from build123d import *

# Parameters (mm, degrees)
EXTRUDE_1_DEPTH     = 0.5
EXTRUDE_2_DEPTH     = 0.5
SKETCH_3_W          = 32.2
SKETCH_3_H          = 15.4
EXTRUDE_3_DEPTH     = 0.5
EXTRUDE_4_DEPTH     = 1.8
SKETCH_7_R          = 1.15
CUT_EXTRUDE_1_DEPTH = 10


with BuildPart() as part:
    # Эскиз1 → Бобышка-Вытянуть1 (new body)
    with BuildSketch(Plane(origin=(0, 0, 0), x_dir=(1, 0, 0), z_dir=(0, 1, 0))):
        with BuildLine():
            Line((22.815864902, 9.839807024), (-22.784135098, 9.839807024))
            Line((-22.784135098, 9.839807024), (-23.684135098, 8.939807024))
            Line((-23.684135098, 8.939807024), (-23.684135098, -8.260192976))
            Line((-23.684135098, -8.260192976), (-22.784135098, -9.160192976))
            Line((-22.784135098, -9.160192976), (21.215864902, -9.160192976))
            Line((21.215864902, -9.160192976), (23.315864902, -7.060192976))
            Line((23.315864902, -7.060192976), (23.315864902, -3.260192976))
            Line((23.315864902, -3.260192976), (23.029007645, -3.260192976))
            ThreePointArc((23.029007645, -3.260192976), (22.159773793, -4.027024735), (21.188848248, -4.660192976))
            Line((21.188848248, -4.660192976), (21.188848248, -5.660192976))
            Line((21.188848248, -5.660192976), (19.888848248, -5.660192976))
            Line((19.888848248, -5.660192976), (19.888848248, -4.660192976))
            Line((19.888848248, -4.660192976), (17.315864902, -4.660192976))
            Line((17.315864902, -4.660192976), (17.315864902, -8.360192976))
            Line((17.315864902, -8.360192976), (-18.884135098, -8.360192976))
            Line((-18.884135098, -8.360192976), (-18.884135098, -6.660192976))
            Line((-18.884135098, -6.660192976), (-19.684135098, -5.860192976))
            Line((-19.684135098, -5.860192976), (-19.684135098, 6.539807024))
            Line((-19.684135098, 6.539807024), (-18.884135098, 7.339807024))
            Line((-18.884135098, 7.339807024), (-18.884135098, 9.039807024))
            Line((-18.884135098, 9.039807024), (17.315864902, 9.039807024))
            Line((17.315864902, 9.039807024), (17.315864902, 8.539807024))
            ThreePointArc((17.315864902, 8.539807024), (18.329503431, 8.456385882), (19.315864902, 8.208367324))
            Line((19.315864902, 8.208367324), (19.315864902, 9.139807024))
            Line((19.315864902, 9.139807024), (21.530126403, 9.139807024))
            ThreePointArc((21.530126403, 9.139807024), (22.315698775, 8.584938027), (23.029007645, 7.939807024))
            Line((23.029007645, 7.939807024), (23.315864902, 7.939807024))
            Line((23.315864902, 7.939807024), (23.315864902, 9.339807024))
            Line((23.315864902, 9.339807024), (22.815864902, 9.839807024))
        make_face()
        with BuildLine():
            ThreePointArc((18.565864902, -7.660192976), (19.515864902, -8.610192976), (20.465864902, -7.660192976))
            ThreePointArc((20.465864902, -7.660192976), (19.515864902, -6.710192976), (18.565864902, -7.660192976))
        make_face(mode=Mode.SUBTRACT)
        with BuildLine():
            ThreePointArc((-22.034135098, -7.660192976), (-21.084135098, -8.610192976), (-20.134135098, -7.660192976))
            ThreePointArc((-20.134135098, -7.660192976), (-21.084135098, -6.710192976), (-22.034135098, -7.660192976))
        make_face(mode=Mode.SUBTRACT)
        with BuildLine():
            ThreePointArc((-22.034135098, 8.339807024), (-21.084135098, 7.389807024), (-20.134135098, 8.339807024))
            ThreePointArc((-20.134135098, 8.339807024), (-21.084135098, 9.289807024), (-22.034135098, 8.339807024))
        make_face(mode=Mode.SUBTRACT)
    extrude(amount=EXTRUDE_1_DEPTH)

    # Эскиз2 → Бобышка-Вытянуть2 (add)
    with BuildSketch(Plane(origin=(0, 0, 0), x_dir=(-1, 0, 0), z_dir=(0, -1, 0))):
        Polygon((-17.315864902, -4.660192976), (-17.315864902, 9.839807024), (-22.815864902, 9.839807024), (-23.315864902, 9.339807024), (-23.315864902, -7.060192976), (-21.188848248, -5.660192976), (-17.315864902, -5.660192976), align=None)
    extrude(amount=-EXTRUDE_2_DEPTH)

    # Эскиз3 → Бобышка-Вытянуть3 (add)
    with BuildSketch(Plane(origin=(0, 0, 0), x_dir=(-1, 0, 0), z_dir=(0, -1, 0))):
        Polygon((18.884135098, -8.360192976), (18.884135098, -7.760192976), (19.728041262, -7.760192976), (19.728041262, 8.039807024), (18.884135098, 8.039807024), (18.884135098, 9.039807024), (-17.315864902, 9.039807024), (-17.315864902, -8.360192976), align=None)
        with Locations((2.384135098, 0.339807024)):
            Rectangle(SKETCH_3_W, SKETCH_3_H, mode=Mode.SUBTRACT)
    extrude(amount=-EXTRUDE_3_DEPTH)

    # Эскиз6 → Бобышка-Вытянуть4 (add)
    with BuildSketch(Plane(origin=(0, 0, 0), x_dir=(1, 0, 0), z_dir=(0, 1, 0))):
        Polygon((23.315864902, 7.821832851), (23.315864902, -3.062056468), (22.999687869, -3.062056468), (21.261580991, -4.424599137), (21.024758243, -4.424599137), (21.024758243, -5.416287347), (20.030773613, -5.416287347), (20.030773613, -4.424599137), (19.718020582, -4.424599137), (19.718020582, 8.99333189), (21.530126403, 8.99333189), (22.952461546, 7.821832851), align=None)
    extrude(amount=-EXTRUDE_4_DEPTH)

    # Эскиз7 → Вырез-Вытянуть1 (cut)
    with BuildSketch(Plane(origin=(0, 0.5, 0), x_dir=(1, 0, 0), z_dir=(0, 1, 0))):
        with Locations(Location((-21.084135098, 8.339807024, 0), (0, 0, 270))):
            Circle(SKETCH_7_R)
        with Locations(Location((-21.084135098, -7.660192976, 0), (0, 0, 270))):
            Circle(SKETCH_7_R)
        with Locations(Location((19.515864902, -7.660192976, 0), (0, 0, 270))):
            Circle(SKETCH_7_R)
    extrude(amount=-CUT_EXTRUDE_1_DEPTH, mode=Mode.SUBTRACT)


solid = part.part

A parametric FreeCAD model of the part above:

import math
import FreeCAD as App
import Part
import Sketcher

V = App.Vector
Q = App.Units.Quantity

doc = App.newDocument("Part")
body = doc.addObject("PartDesign::Body", "Body")

# Sketch on XZ plane
sketch1 = body.newObject("Sketcher::SketchObject", "Sketch")
sketch1.AttachmentSupport = (doc.getObject("XZ_Plane"), [""])
sketch1.MapMode = "FlatFace"
sketch1.addGeometry(Part.LineSegment(V(22.82, -9.84, 0), V(-22.78, -9.84, 0)), False)
sketch1.addGeometry(Part.LineSegment(V(-22.78, -9.84, 0), V(-23.68, -8.94, 0)), False)
sketch1.addGeometry(Part.LineSegment(V(-23.68, -8.94, 0), V(-23.68, 8.26, 0)), False)
sketch1.addGeometry(Part.LineSegment(V(-23.68, 8.26, 0), V(-22.78, 9.16, 0)), False)
sketch1.addGeometry(Part.LineSegment(V(-22.78, 9.16, 0), V(21.22, 9.16, 0)), False)
sketch1.addGeometry(Part.LineSegment(V(21.22, 9.16, 0), V(23.32, 7.06, 0)), False)
sketch1.addGeometry(Part.LineSegment(V(23.32, 7.06, 0), V(23.32, 3.26, 0)), False)
sketch1.addGeometry(Part.LineSegment(V(23.32, 3.26, 0), V(23.03, 3.26, 0)), False)
sketch1.addGeometry(Part.ArcOfCircle(Part.Circle(V(17.32, -2.34, 0), V(0, 0, 1), 8), math.radians(44.43), math.radians(61.04)), False)
sketch1.addGeometry(Part.LineSegment(V(21.19, 4.66, 0), V(21.19, 5.66, 0)), False)
sketch1.addGeometry(Part.LineSegment(V(21.19, 5.66, 0), V(19.89, 5.66, 0)), False)
sketch1.addGeometry(Part.LineSegment(V(19.89, 5.66, 0), V(19.89, 4.66, 0)), False)
sketch1.addGeometry(Part.LineSegment(V(19.89, 4.66, 0), V(17.32, 4.66, 0)), False)
sketch1.addGeometry(Part.LineSegment(V(17.32, 4.66, 0), V(17.32, 8.36, 0)), False)
sketch1.addGeometry(Part.LineSegment(V(17.32, 8.36, 0), V(-18.88, 8.36, 0)), False)
sketch1.addGeometry(Part.LineSegment(V(-18.88, 8.36, 0), V(-18.88, 6.66, 0)), False)
sketch1.addGeometry(Part.LineSegment(V(-18.88, 6.66, 0), V(-19.68, 5.86, 0)), False)
sketch1.addGeometry(Part.LineSegment(V(-19.68, 5.86, 0), V(-19.68, -6.54, 0)), False)
sketch1.addGeometry(Part.LineSegment(V(-19.68, -6.54, 0), V(-18.88, -7.34, 0)), False)
sketch1.addGeometry(Part.LineSegment(V(-18.88, -7.34, 0), V(-18.88, -9.04, 0)), False)
sketch1.addGeometry(Part.LineSegment(V(-18.88, -9.04, 0), V(17.32, -9.04, 0)), False)
sketch1.addGeometry(Part.LineSegment(V(17.32, -9.04, 0), V(17.32, -8.54, 0)), False)
sketch1.addGeometry(Part.ArcOfCircle(Part.Circle(V(17.32, -2.34, 0), V(0, 0, 1), 6.2), math.radians(-90), math.radians(-71.18)), False)
sketch1.addGeometry(Part.LineSegment(V(19.32, -8.21, 0), V(19.32, -9.14, 0)), False)
sketch1.addGeometry(Part.LineSegment(V(19.32, -9.14, 0), V(21.53, -9.14, 0)), False)
sketch1.addGeometry(Part.ArcOfCircle(Part.Circle(V(17.32, -2.34, 0), V(0, 0, 1), 8), math.radians(-58.21), math.radians(-44.43)), False)
sketch1.addGeometry(Part.LineSegment(V(23.03, -7.94, 0), V(23.32, -7.94, 0)), False)
sketch1.addGeometry(Part.LineSegment(V(23.32, -7.94, 0), V(23.32, -9.34, 0)), False)
sketch1.addGeometry(Part.LineSegment(V(23.32, -9.34, 0), V(22.82, -9.84, 0)), False)
sketch1.addGeometry(Part.Circle(V(-21.08, 7.66, 0), V(0, 0, 1), 0.95), False)
sketch1.addGeometry(Part.Circle(V(19.52, 7.66, 0), V(0, 0, 1), 0.95), False)
sketch1.addGeometry(Part.Circle(V(-21.08, -8.34, 0), V(0, 0, 1), 0.95), False)
sketch1.addConstraint(Sketcher.Constraint("Coincident", 0, 2, 1, 1))
sketch1.addConstraint(Sketcher.Constraint("Coincident", 1, 2, 2, 1))
sketch1.addConstraint(Sketcher.Constraint("Coincident", 2, 2, 3, 1))
sketch1.addConstraint(Sketcher.Constraint("Coincident", 3, 2, 4, 1))
sketch1.addConstraint(Sketcher.Constraint("Coincident", 4, 2, 5, 1))
sketch1.addConstraint(Sketcher.Constraint("Coincident", 5, 2, 6, 1))
sketch1.addConstraint(Sketcher.Constraint("Coincident", 6, 2, 7, 1))
sketch1.addConstraint(Sketcher.Constraint("Coincident", 7, 2, 8, 1))
sketch1.addConstraint(Sketcher.Constraint("Coincident", 8, 2, 9, 1))
sketch1.addConstraint(Sketcher.Constraint("Coincident", 9, 2, 10, 1))
sketch1.addConstraint(Sketcher.Constraint("Coincident", 10, 2, 11, 1))
sketch1.addConstraint(Sketcher.Constraint("Coincident", 11, 2, 12, 1))
sketch1.addConstraint(Sketcher.Constraint("Coincident", 12, 2, 13, 1))
sketch1.addConstraint(Sketcher.Constraint("Coincident", 13, 2, 14, 1))
sketch1.addConstraint(Sketcher.Constraint("Coincident", 14, 2, 15, 1))
sketch1.addConstraint(Sketcher.Constraint("Coincident", 15, 2, 16, 1))
sketch1.addConstraint(Sketcher.Constraint("Coincident", 16, 2, 17, 1))
sketch1.addConstraint(Sketcher.Constraint("Coincident", 17, 2, 18, 1))
sketch1.addConstraint(Sketcher.Constraint("Coincident", 18, 2, 19, 1))
sketch1.addConstraint(Sketcher.Constraint("Coincident", 19, 2, 20, 1))
sketch1.addConstraint(Sketcher.Constraint("Coincident", 20, 2, 21, 1))
sketch1.addConstraint(Sketcher.Constraint("Coincident", 21, 2, 22, 1))
sketch1.addConstraint(Sketcher.Constraint("Coincident", 22, 2, 23, 1))
sketch1.addConstraint(Sketcher.Constraint("Coincident", 23, 2, 24, 1))
sketch1.addConstraint(Sketcher.Constraint("Coincident", 24, 2, 25, 1))
sketch1.addConstraint(Sketcher.Constraint("Coincident", 25, 2, 26, 1))
sketch1.addConstraint(Sketcher.Constraint("Coincident", 26, 2, 27, 1))
sketch1.addConstraint(Sketcher.Constraint("Coincident", 27, 2, 28, 1))
sketch1.addConstraint(Sketcher.Constraint("Coincident", 28, 2, 0, 1))
sketch1.addConstraint(Sketcher.Constraint("Horizontal", 0))
sketch1.addConstraint(Sketcher.Constraint("Vertical", 2))
sketch1.addConstraint(Sketcher.Constraint("Horizontal", 4))
sketch1.addConstraint(Sketcher.Constraint("Vertical", 6))
sketch1.addConstraint(Sketcher.Constraint("Horizontal", 7))
sketch1.addConstraint(Sketcher.Constraint("Vertical", 9))
sketch1.addConstraint(Sketcher.Constraint("Horizontal", 10))
sketch1.addConstraint(Sketcher.Constraint("Vertical", 11))
sketch1.addConstraint(Sketcher.Constraint("Horizontal", 12))
sketch1.addConstraint(Sketcher.Constraint("Vertical", 13))
sketch1.addConstraint(Sketcher.Constraint("Horizontal", 14))
sketch1.addConstraint(Sketcher.Constraint("Vertical", 15))
sketch1.addConstraint(Sketcher.Constraint("Vertical", 17))
sketch1.addConstraint(Sketcher.Constraint("Vertical", 19))
sketch1.addConstraint(Sketcher.Constraint("Horizontal", 20))
sketch1.addConstraint(Sketcher.Constraint("Vertical", 21))
sketch1.addConstraint(Sketcher.Constraint("Vertical", 23))
sketch1.addConstraint(Sketcher.Constraint("Horizontal", 24))
sketch1.addConstraint(Sketcher.Constraint("Horizontal", 26))
sketch1.addConstraint(Sketcher.Constraint("Vertical", 27))
sketch1.addConstraint(Sketcher.Constraint("Coincident", 22, 3, 8, 3))
sketch1.addConstraint(Sketcher.Constraint("Coincident", 25, 3, 8, 3))
sketch1.addConstraint(Sketcher.Constraint("Equal", 8, 25))
sketch1.addConstraint(Sketcher.Constraint("Equal", 29, 30))
sketch1.addConstraint(Sketcher.Constraint("Equal", 30, 31))
sketch1.addConstraint(Sketcher.Constraint("Perpendicular", 1, 3))
sketch1.addConstraint(Sketcher.Constraint("Perpendicular", 3, 5))
sketch1.addConstraint(Sketcher.Constraint("Perpendicular", 5, 16))
sketch1.addConstraint(Sketcher.Constraint("Perpendicular", 16, 18))
sketch1.addConstraint(Sketcher.Constraint("Perpendicular", 18, 28))
sketch1.addConstraint(Sketcher.Constraint("Horizontal", 29, 3, 30, 3))
sketch1.addConstraint(Sketcher.Constraint("Horizontal", 8, 2, 11, 2))
sketch1.addConstraint(Sketcher.Constraint("Vertical", 29, 3, 31, 3))
sketch1.addConstraint(Sketcher.Constraint("Vertical", 0, 2, 3, 2))
sketch1.addConstraint(Sketcher.Constraint("Vertical", 25, 3, 12, 2))
sketch1.addConstraint(Sketcher.Constraint("Vertical", 15, 2, 18, 2))
sketch1.addConstraint(Sketcher.Constraint("Vertical", 13, 2, 20, 2))
sketch1.addConstraint(Sketcher.Constraint("Vertical", 7, 2, 25, 2))
sketch1.addConstraint(Sketcher.Constraint("Vertical", 6, 2, 26, 2))
sketch1.addConstraint(Sketcher.Constraint("Equal", 15, 19))
sketch1.addConstraint(Sketcher.Constraint("Equal", 1, 3))
sketch1.addConstraint(Sketcher.Constraint("Radius", 8, 8.0))
sketch1.addConstraint(Sketcher.Constraint("Diameter", 29, 1.9))
sketch1.addConstraint(Sketcher.Constraint("Radius", 22, 6.2))
sketch1.addConstraint(Sketcher.Constraint("DistanceX", 4, 1, 4, 2, 44.0))
sketch1.addConstraint(Sketcher.Constraint("DistanceY", 9, 1, 9, 2, 1.0))
sketch1.addConstraint(Sketcher.Constraint("DistanceX", 0, 2, 0, 1, 45.6))
sketch1.addConstraint(Sketcher.Constraint("DistanceX", 10, 2, 10, 1, 1.3))
sketch1.addConstraint(Sketcher.Constraint("DistanceX", 14, 2, 14, 1, 36.2))
sketch1.addConstraint(Sketcher.Constraint("DistanceY", 2, 1, 2, 2, 17.2))
sketch1.addConstraint(Sketcher.Constraint("DistanceY", 6, 2, 6, 1, 3.8))
sketch1.addConstraint(Sketcher.Constraint("DistanceY", 13, 1, 13, 2, 3.7))
sketch1.addConstraint(Sketcher.Constraint("DistanceY", 15, 2, 15, 1, 1.7))
sketch1.addConstraint(Sketcher.Constraint("DistanceY", 17, 2, 17, 1, 12.4))
sketch1.addConstraint(Sketcher.Constraint("DistanceY", 21, 1, 21, 2, 0.5))
sketch1.addConstraint(Sketcher.Constraint("DistanceY", 27, 2, 27, 1, 1.4))
sketch1.addConstraint(Sketcher.Constraint("DistanceY", 8, 3, 29, 3, 10.0))
sketch1.addConstraint(Sketcher.Constraint("DistanceY", 31, 3, 29, 3, 16.0))
sketch1.addConstraint(Sketcher.Constraint("DistanceX", 1, 2, 8, 3, 41.0))
sketch1.addConstraint(Sketcher.Constraint("DistanceY", 0, 2, 3, 2, 19.0))
sketch1.addConstraint(Sketcher.Constraint("DistanceX", 22, 3, 5, 2, 6.0))
sketch1.addConstraint(Sketcher.Constraint("DistanceY", 8, 2, 30, 3, 3.0))
sketch1.addConstraint(Sketcher.Constraint("DistanceX", 21, 2, 22, 2, 2.0))
sketch1.addConstraint(Sketcher.Constraint("DistanceX", 29, 3, 8, 3, 38.4))
sketch1.addConstraint(Sketcher.Constraint("DistanceX", 22, 3, 30, 3, 2.2))
sketch1.addConstraint(Sketcher.Constraint("DistanceY", 23, 2, 20, 2, 0.1))
sketch1.addConstraint(Sketcher.Constraint("DistanceX", -1, 1, 8, 2, 21.188848))
sketch1.addConstraint(Sketcher.Constraint("DistanceY", 8, 3, -1, 1, 2.339807))
pad1 = body.newObject("PartDesign::Pad", "Pad")
pad1.Profile = sketch1
pad1.Length = 0.5
pad1.Reversed = True

# Sketch on XZ plane
sketch2 = body.newObject("Sketcher::SketchObject", "Sketch001")
sketch2.AttachmentSupport = (doc.getObject("XZ_Plane"), [""])
sketch2.MapMode = "FlatFace"
sketch2.addGeometry(Part.LineSegment(V(17.3, -9.8, 0), V(22.8, -9.8, 0)), False)
sketch2.addGeometry(Part.LineSegment(V(22.8, -9.8, 0), V(23.3, -9.3, 0)), False)
sketch2.addGeometry(Part.LineSegment(V(23.3, -9.3, 0), V(23.3, 7.1, 0)), False)
sketch2.addGeometry(Part.LineSegment(V(23.3, 7.1, 0), V(21.2, 5.7, 0)), False)
sketch2.addGeometry(Part.LineSegment(V(21.2, 5.7, 0), V(17.3, 5.7, 0)), False)
sketch2.addGeometry(Part.LineSegment(V(17.3, 5.7, 0), V(17.3, -9.8, 0)), False)
sketch2.addConstraint(Sketcher.Constraint("Coincident", 0, 2, 1, 1))
sketch2.addConstraint(Sketcher.Constraint("Coincident", 1, 2, 2, 1))
sketch2.addConstraint(Sketcher.Constraint("Coincident", 2, 2, 3, 1))
sketch2.addConstraint(Sketcher.Constraint("Coincident", 3, 2, 4, 1))
sketch2.addConstraint(Sketcher.Constraint("Coincident", 4, 2, 5, 1))
sketch2.addConstraint(Sketcher.Constraint("Coincident", 5, 2, 0, 1))
sketch2.addConstraint(Sketcher.Constraint("Horizontal", 0))
sketch2.addConstraint(Sketcher.Constraint("Vertical", 2))
sketch2.addConstraint(Sketcher.Constraint("Horizontal", 4))
sketch2.addConstraint(Sketcher.Constraint("Vertical", 5))
sketch2.addConstraint(Sketcher.Constraint("Angle", 1, Q("45 deg")))
sketch2.addConstraint(Sketcher.Constraint("DistanceX", 0, 1, 0, 2, 5.5))
sketch2.addConstraint(Sketcher.Constraint("DistanceY", 2, 1, 2, 2, 16.4))
sketch2.addConstraint(Sketcher.Constraint("DistanceY", 5, 2, 5, 1, 15.5))
sketch2.addConstraint(Sketcher.Constraint("DistanceY", 1, 2, 3, 2, 15.0))
sketch2.addConstraint(Sketcher.Constraint("Distance", 3, 2.546409))
sketch2.addConstraint(Sketcher.Constraint("DistanceX", -1, 1, 3, 2, 21.188848))
sketch2.addConstraint(Sketcher.Constraint("DistanceY", 0, 2, -1, 1, 9.839807))
pad2 = body.newObject("PartDesign::Pad", "Pad001")
pad2.Profile = sketch2
pad2.Length = 0.5
pad2.Reversed = True

# Sketch on XZ plane
sketch3 = body.newObject("Sketcher::SketchObject", "Sketch002")
sketch3.AttachmentSupport = (doc.getObject("XZ_Plane"), [""])
sketch3.MapMode = "FlatFace"
sketch3.addGeometry(Part.LineSegment(V(-18.9, 8.4, 0), V(-18.9, 7.8, 0)), False)
sketch3.addGeometry(Part.LineSegment(V(-18.9, 7.8, 0), V(-19.7, 7.8, 0)), False)
sketch3.addGeometry(Part.LineSegment(V(-19.7, 7.8, 0), V(-19.7, -8, 0)), False)
sketch3.addGeometry(Part.LineSegment(V(-19.7, -8, 0), V(-18.9, -8, 0)), False)
sketch3.addGeometry(Part.LineSegment(V(-18.9, -8, 0), V(-18.9, -9, 0)), False)
sketch3.addGeometry(Part.LineSegment(V(-18.9, -9, 0), V(17.3, -9, 0)), False)
sketch3.addGeometry(Part.LineSegment(V(17.3, -9, 0), V(17.3, 8.4, 0)), False)
sketch3.addGeometry(Part.LineSegment(V(17.3, 8.4, 0), V(-18.9, 8.4, 0)), False)
sketch3.addGeometry(Part.LineSegment(V(-18.5, 7.4, 0), V(13.7, 7.4, 0)), False)
sketch3.addGeometry(Part.LineSegment(V(13.7, 7.4, 0), V(13.7, -8, 0)), False)
sketch3.addGeometry(Part.LineSegment(V(13.7, -8, 0), V(-18.5, -8, 0)), False)
sketch3.addGeometry(Part.LineSegment(V(-18.5, -8, 0), V(-18.5, 7.4, 0)), False)
sketch3.addConstraint(Sketcher.Constraint("Coincident", 0, 2, 1, 1))
sketch3.addConstraint(Sketcher.Constraint("Coincident", 1, 2, 2, 1))
sketch3.addConstraint(Sketcher.Constraint("Coincident", 2, 2, 3, 1))
sketch3.addConstraint(Sketcher.Constraint("Coincident", 3, 2, 4, 1))
sketch3.addConstraint(Sketcher.Constraint("Coincident", 4, 2, 5, 1))
sketch3.addConstraint(Sketcher.Constraint("Coincident", 5, 2, 6, 1))
sketch3.addConstraint(Sketcher.Constraint("Coincident", 6, 2, 7, 1))
sketch3.addConstraint(Sketcher.Constraint("Coincident", 7, 2, 0, 1))
sketch3.addConstraint(Sketcher.Constraint("Coincident", 8, 2, 9, 1))
sketch3.addConstraint(Sketcher.Constraint("Coincident", 9, 2, 10, 1))
sketch3.addConstraint(Sketcher.Constraint("Coincident", 10, 2, 11, 1))
sketch3.addConstraint(Sketcher.Constraint("Coincident", 11, 2, 8, 1))
sketch3.addConstraint(Sketcher.Constraint("Vertical", 0))
sketch3.addConstraint(Sketcher.Constraint("Horizontal", 1))
sketch3.addConstraint(Sketcher.Constraint("Vertical", 2))
sketch3.addConstraint(Sketcher.Constraint("Horizontal", 3))
sketch3.addConstraint(Sketcher.Constraint("Vertical", 4))
sketch3.addConstraint(Sketcher.Constraint("Horizontal", 5))
sketch3.addConstraint(Sketcher.Constraint("Vertical", 6))
sketch3.addConstraint(Sketcher.Constraint("Horizontal", 7))
sketch3.addConstraint(Sketcher.Constraint("Horizontal", 8))
sketch3.addConstraint(Sketcher.Constraint("Vertical", 9))
sketch3.addConstraint(Sketcher.Constraint("Horizontal", 10))
sketch3.addConstraint(Sketcher.Constraint("Vertical", 11))
sketch3.addConstraint(Sketcher.Constraint("Horizontal", 3, 2, 9, 2))
sketch3.addConstraint(Sketcher.Constraint("Vertical", 0, 2, 3, 2))
sketch3.addConstraint(Sketcher.Constraint("DistanceY", 4, 2, 4, 1, 1.0))
sketch3.addConstraint(Sketcher.Constraint("DistanceX", 5, 1, 5, 2, 36.2))
sketch3.addConstraint(Sketcher.Constraint("DistanceX", 8, 1, 8, 2, 32.2))
sketch3.addConstraint(Sketcher.Constraint("DistanceY", 0, 2, 0, 1, 0.6))
sketch3.addConstraint(Sketcher.Constraint("DistanceY", 2, 2, 2, 1, 15.8))
sketch3.addConstraint(Sketcher.Constraint("DistanceY", 9, 2, 9, 1, 15.4))
sketch3.addConstraint(Sketcher.Constraint("DistanceX", 8, 2, 6, 2, 3.6))
sketch3.addConstraint(Sketcher.Constraint("DistanceX", 1, 2, 1, 1, 0.843906))
sketch3.addConstraint(Sketcher.Constraint("DistanceX", 1, 2, -1, 1, 19.728041))
sketch3.addConstraint(Sketcher.Constraint("DistanceY", -1, 1, 0, 2, 7.760193))
pad3 = body.newObject("PartDesign::Pad", "Pad002")
pad3.Profile = sketch3
pad3.Length = 0.5
pad3.Reversed = True

# Sketch on XZ plane
sketch4 = body.newObject("Sketcher::SketchObject", "Sketch003")
sketch4.AttachmentSupport = (doc.getObject("XZ_Plane"), [""])
sketch4.MapMode = "FlatFace"
sketch4.addGeometry(Part.LineSegment(V(23.32, 3.06, 0), V(23.32, -7.82, 0)), False)
sketch4.addGeometry(Part.LineSegment(V(23.32, -7.82, 0), V(22.95, -7.82, 0)), False)
sketch4.addGeometry(Part.LineSegment(V(22.95, -7.82, 0), V(21.53, -8.99, 0)), False)
sketch4.addGeometry(Part.LineSegment(V(21.53, -8.99, 0), V(19.72, -8.99, 0)), False)
sketch4.addGeometry(Part.LineSegment(V(19.72, -8.99, 0), V(19.72, 4.42, 0)), False)
sketch4.addGeometry(Part.LineSegment(V(19.72, 4.42, 0), V(20.03, 4.42, 0)), False)
sketch4.addGeometry(Part.LineSegment(V(20.03, 4.42, 0), V(20.03, 5.42, 0)), False)
sketch4.addGeometry(Part.LineSegment(V(20.03, 5.42, 0), V(21.02, 5.42, 0)), False)
sketch4.addGeometry(Part.LineSegment(V(21.02, 5.42, 0), V(21.02, 4.42, 0)), False)
sketch4.addGeometry(Part.LineSegment(V(21.02, 4.42, 0), V(21.26, 4.42, 0)), False)
sketch4.addGeometry(Part.LineSegment(V(21.26, 4.42, 0), V(23, 3.06, 0)), False)
sketch4.addGeometry(Part.LineSegment(V(23, 3.06, 0), V(23.32, 3.06, 0)), False)
sketch4.addConstraint(Sketcher.Constraint("Coincident", 0, 2, 1, 1))
sketch4.addConstraint(Sketcher.Constraint("Coincident", 1, 2, 2, 1))
sketch4.addConstraint(Sketcher.Constraint("Coincident", 2, 2, 3, 1))
sketch4.addConstraint(Sketcher.Constraint("Coincident", 3, 2, 4, 1))
sketch4.addConstraint(Sketcher.Constraint("Coincident", 4, 2, 5, 1))
sketch4.addConstraint(Sketcher.Constraint("Coincident", 5, 2, 6, 1))
sketch4.addConstraint(Sketcher.Constraint("Coincident", 6, 2, 7, 1))
sketch4.addConstraint(Sketcher.Constraint("Coincident", 7, 2, 8, 1))
sketch4.addConstraint(Sketcher.Constraint("Coincident", 8, 2, 9, 1))
sketch4.addConstraint(Sketcher.Constraint("Coincident", 9, 2, 10, 1))
sketch4.addConstraint(Sketcher.Constraint("Coincident", 10, 2, 11, 1))
sketch4.addConstraint(Sketcher.Constraint("Coincident", 11, 2, 0, 1))
sketch4.addConstraint(Sketcher.Constraint("Vertical", 0))
sketch4.addConstraint(Sketcher.Constraint("Horizontal", 1))
sketch4.addConstraint(Sketcher.Constraint("Horizontal", 3))
sketch4.addConstraint(Sketcher.Constraint("Vertical", 4))
sketch4.addConstraint(Sketcher.Constraint("Horizontal", 5))
sketch4.addConstraint(Sketcher.Constraint("Vertical", 6))
sketch4.addConstraint(Sketcher.Constraint("Horizontal", 7))
sketch4.addConstraint(Sketcher.Constraint("Vertical", 8))
sketch4.addConstraint(Sketcher.Constraint("Horizontal", 9))
sketch4.addConstraint(Sketcher.Constraint("Horizontal", 11))
sketch4.addConstraint(Sketcher.Constraint("Horizontal", 5, 2, 8, 2))
sketch4.addConstraint(Sketcher.Constraint("DistanceY", 0, 2, 0, 1, 10.883889))
sketch4.addConstraint(Sketcher.Constraint("DistanceY", 4, 1, 4, 2, 13.417931))
sketch4.addConstraint(Sketcher.Constraint("DistanceY", 6, 1, 6, 2, 0.991688))
sketch4.addConstraint(Sketcher.Constraint("DistanceY", -1, 1, 4, 2, 4.424599))
sketch4.addConstraint(Sketcher.Constraint("DistanceY", 2, 2, 1, 2, 1.171499))
sketch4.addConstraint(Sketcher.Constraint("DistanceX", 1, 2, 1, 1, 0.363403))
sketch4.addConstraint(Sketcher.Constraint("DistanceX", 3, 2, 3, 1, 1.812106))
sketch4.addConstraint(Sketcher.Constraint("DistanceX", 5, 1, 5, 2, 0.312753))
sketch4.addConstraint(Sketcher.Constraint("DistanceX", 7, 1, 7, 2, 0.993985))
sketch4.addConstraint(Sketcher.Constraint("DistanceX", 9, 1, 9, 2, 0.236823))
sketch4.addConstraint(Sketcher.Constraint("DistanceX", 11, 1, 11, 2, 0.316177))
sketch4.addConstraint(Sketcher.Constraint("DistanceX", -1, 1, 1, 2, 22.952462))
sketch4.addConstraint(Sketcher.Constraint("DistanceX", -1, 1, 3, 2, 19.718021))
pad4 = body.newObject("PartDesign::Pad", "Pad003")
pad4.Profile = sketch4
pad4.Length = 1.8

# Sketch on XZ plane
sketch5 = body.newObject("Sketcher::SketchObject", "Sketch004")
sketch5.AttachmentSupport = (doc.getObject("XZ_Plane"), [""])
sketch5.MapMode = "FlatFace"
sketch5.AttachmentOffset = App.Placement(V(0, 0, -0.5), App.Rotation())
sketch5.addGeometry(Part.Circle(V(-21.1, -8.3, 0), V(0, 0, 1), 1.1), False)
sketch5.addGeometry(Part.Circle(V(-21.1, 7.7, 0), V(0, 0, 1), 1.1), False)
sketch5.addGeometry(Part.Circle(V(19.5, 7.7, 0), V(0, 0, 1), 1.1), False)
sketch5.addConstraint(Sketcher.Constraint("Equal", 0, 1))
sketch5.addConstraint(Sketcher.Constraint("Equal", 1, 2))
sketch5.addConstraint(Sketcher.Constraint("Horizontal", 1, 3, 2, 3))
sketch5.addConstraint(Sketcher.Constraint("Vertical", 0, 3, 1, 3))
sketch5.addConstraint(Sketcher.Constraint("Diameter", 0, 2.3))
sketch5.addConstraint(Sketcher.Constraint("DistanceY", 0, 3, 1, 3, 16.0))
sketch5.addConstraint(Sketcher.Constraint("DistanceX", 1, 3, 2, 3, 40.6))
sketch5.addConstraint(Sketcher.Constraint("DistanceX", 0, 3, -1, 1, 21.084135))
sketch5.addConstraint(Sketcher.Constraint("DistanceY", 0, 3, -1, 1, 8.339807))
pocket1 = body.newObject("PartDesign::Pocket", "Pocket")
pocket1.Profile = sketch5
pocket1.Length = 10
pocket1.Reversed = True

doc.recompute()
